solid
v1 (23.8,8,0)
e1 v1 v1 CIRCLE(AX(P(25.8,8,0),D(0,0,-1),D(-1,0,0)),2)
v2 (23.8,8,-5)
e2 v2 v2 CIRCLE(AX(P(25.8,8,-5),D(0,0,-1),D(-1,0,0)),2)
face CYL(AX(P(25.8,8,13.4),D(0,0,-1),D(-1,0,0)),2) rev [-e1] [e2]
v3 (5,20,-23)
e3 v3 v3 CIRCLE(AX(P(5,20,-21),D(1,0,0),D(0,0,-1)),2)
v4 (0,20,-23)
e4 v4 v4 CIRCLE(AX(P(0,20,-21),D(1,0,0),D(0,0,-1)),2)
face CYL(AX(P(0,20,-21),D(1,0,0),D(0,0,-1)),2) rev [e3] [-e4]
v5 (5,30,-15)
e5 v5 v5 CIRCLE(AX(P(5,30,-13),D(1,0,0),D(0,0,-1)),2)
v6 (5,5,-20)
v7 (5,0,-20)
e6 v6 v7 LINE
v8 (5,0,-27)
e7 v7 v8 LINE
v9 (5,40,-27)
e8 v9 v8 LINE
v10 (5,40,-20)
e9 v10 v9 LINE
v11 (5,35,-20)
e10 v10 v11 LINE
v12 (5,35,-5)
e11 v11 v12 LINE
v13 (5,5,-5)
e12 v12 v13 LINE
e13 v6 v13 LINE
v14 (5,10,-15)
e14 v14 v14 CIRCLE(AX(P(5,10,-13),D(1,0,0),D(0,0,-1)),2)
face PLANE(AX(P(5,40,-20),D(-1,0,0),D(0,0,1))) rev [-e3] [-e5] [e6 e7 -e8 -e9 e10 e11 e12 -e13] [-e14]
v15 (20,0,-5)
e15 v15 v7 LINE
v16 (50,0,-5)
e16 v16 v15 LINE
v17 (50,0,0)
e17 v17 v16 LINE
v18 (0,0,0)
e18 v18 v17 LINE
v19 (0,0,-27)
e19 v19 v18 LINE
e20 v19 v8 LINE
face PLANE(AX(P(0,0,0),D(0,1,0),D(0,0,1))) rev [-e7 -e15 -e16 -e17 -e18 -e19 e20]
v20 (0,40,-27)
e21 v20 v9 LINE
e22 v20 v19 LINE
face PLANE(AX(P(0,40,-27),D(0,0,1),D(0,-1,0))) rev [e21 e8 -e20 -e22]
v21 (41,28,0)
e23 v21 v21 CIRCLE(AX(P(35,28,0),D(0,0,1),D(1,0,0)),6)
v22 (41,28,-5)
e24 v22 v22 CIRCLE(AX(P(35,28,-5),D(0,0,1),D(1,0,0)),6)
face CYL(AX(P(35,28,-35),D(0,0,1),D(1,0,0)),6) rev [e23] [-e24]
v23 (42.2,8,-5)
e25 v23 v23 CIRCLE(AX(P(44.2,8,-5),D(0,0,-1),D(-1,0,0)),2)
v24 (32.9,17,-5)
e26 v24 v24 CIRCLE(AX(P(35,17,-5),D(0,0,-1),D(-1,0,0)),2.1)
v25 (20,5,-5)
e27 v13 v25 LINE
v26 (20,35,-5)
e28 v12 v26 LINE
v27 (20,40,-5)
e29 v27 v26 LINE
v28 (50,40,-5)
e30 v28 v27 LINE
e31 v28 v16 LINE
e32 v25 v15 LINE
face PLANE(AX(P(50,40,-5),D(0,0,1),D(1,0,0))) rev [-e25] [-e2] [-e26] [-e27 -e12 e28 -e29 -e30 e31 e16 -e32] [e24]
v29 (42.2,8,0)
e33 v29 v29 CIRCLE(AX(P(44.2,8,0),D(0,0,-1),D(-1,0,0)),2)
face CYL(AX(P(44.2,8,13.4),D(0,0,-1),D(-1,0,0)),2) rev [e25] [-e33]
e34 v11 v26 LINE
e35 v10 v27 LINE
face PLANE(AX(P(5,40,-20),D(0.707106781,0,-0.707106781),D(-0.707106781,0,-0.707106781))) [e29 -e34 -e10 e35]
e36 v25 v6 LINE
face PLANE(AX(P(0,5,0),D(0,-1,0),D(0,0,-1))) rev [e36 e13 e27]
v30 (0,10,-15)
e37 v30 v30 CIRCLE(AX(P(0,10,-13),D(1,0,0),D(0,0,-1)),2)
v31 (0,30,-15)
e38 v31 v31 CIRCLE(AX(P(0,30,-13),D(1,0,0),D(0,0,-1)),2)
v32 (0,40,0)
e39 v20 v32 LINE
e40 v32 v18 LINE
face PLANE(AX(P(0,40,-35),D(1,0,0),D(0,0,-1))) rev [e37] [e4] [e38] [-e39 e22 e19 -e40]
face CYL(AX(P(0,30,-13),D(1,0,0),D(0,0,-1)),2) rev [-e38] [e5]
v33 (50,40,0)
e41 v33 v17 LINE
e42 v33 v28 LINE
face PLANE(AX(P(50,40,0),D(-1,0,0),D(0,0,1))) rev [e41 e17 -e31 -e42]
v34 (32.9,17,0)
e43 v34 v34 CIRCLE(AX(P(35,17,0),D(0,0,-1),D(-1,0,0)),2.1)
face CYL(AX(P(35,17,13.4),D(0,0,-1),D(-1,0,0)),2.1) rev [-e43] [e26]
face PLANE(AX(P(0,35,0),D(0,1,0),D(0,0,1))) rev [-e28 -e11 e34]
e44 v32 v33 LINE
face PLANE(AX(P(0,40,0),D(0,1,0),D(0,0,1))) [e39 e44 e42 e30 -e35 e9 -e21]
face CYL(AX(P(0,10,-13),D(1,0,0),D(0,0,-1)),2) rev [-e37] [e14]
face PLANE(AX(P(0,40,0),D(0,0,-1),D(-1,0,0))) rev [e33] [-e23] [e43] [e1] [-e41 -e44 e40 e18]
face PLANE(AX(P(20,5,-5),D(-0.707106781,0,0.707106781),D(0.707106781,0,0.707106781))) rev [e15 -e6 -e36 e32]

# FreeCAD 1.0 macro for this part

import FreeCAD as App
import Part
import Sketcher

V = App.Vector


def add_polygon(sketch, points):
    """Adds a closed chain of lines whose ends are joined by coincident constraints."""
    first, n = sketch.GeometryCount, len(points)
    for a, b in zip(points, points[1:] + points[:1]):
        sketch.addGeometry(Part.LineSegment(App.Vector(*a, 0), App.Vector(*b, 0)), False)
    for i in range(n):
        sketch.addConstraint(Sketcher.Constraint("Coincident", first + i, 2, first + (i + 1) % n, 1))

doc = App.newDocument("Part")
body = doc.addObject("PartDesign::Body", "Body")

sketch1 = body.newObject("Sketcher::SketchObject", "Sketch")
sketch1.AttachmentSupport = (doc.getObject("XZ_Plane"), [""])
sketch1.MapMode = "FlatFace"
add_polygon(sketch1, [(0, 0), (50, 0), (50, -5), (20, -5), (5, -20), (5, -35), (0, -35)])
sketch1.addConstraint([
    Sketcher.Constraint("Horizontal", 0),
    Sketcher.Constraint("Vertical", 1),
    Sketcher.Constraint("Horizontal", 2),
    Sketcher.Constraint("Vertical", 4),
    Sketcher.Constraint("Horizontal", 5),
    Sketcher.Constraint("Vertical", 6),
    Sketcher.Constraint("Coincident", 6, 2, -1, 1),
    Sketcher.Constraint("Equal", 5, 1),
    Sketcher.Constraint("DistanceX", 0, 1, 0, 2, 50.0),
    Sketcher.Constraint("DistanceX", 2, 2, 2, 1, 30.0),
    Sketcher.Constraint("DistanceX", 5, 2, 5, 1, 5.0),
    Sketcher.Constraint("DistanceY", 4, 2, 4, 1, 15.0),
    Sketcher.Constraint("DistanceY", 6, 1, 6, 2, 35.0),
])
pad1 = body.newObject("PartDesign::Pad", "Pad")
pad1.Profile = sketch1
pad1.Length = 40
pad1.Reversed = True

sketch2 = body.newObject("Sketcher::SketchObject", "Sketch001")
sketch2.AttachmentSupport = (doc.getObject("XZ_Plane"), [""])
sketch2.MapMode = "FlatFace"
add_polygon(sketch2, [(5, -5), (5, -20), (20, -5)])
sketch2.addConstraint([
    Sketcher.Constraint("Vertical", 0),
    Sketcher.Constraint("Horizontal", 2),
    Sketcher.Constraint("Equal", 2, 0),
    Sketcher.Constraint("DistanceX", 2, 2, 2, 1, 15.0),
    Sketcher.Constraint("DistanceX", -1, 1, 0, 2, 5.0),
    Sketcher.Constraint("DistanceY", 0, 2, -1, 1, 20.0),
])
pocket1 = body.newObject("PartDesign::Pocket", "Pocket")
pocket1.Profile = sketch2
pocket1.Length = 35

sketch3 = body.newObject("Sketcher::SketchObject", "Sketch002")
sketch3.AttachmentSupport = (doc.getObject("XZ_Plane"), [""])
sketch3.MapMode = "FlatFace"
add_polygon(sketch3, [(5, -5), (5, -20), (20, -5)])
sketch3.addConstraint([
    Sketcher.Constraint("Vertical", 0),
    Sketcher.Constraint("Horizontal", 2),
    Sketcher.Constraint("Equal", 2, 0),
    Sketcher.Constraint("DistanceX", 2, 2, 2, 1, 15.0),
    Sketcher.Constraint("DistanceX", -1, 1, 0, 2, 5.0),
    Sketcher.Constraint("DistanceY", 0, 2, -1, 1, 20.0),
])
pad2 = body.newObject("PartDesign::Pad", "Pad001")
pad2.Profile = sketch3
pad2.Length = 5
pad2.Reversed = True

sketch4 = body.newObject("Sketcher::SketchObject", "Sketch003")
sketch4.AttachmentSupport = (doc.getObject("YZ_Plane"), [""])
sketch4.MapMode = "FlatFace"
sketch4.AttachmentOffset = App.Placement(V(0, 0, 5), App.Rotation())
sketch4.addGeometry([
    Part.Circle(V(30, -13, 0), V(0, 0, 1), 2),
    Part.Circle(V(10, -13, 0), V(0, 0, 1), 2),
    Part.Circle(V(20, -21, 0), V(0, 0, 1), 2),
], False)
sketch4.addConstraint([
    Sketcher.Constraint("Equal", 0, 1),
    Sketcher.Constraint("Equal", 1, 2),
    Sketcher.Constraint("Horizontal", 0, 3, 1, 3),
    Sketcher.Constraint("Diameter", 0, 4.0),
    Sketcher.Constraint("DistanceX", -1, 1, 0, 3, 30.0),
    Sketcher.Constraint("DistanceY", 0, 3, -1, 1, 13.0),
    Sketcher.Constraint("DistanceX", -1, 1, 1, 3, 10.0),
    Sketcher.Constraint("DistanceX", -1, 1, 2, 3, 20.0),
    Sketcher.Constraint("DistanceY", 2, 3, -1, 1, 21.0),
])
pocket2 = body.newObject("PartDesign::Pocket", "Pocket001")
pocket2.Profile = sketch4
pocket2.Type = "ThroughAll"

sketch5 = body.newObject("Sketcher::SketchObject", "Sketch004")
sketch5.AttachmentSupport = (doc.getObject("XY_Plane"), [""])
sketch5.MapMode = "FlatFace"
sketch5.AttachmentOffset = App.Placement(V(0, 0, -5), App.Rotation())
sketch5.addGeometry([
    Part.Circle(V(35, 28, 0), V(0, 0, 1), 3.2),
    Part.Circle(V(35, 17, 0), V(0, 0, 1), 2.1),
    Part.Circle(V(25.8, 8, 0), V(0, 0, 1), 2),
    Part.Circle(V(44.2, 8, 0), V(0, 0, 1), 2),
], False)
sketch5.addConstraint([
    Sketcher.Constraint("Equal", 2, 3),
    Sketcher.Constraint("Horizontal", 2, 3, 3, 3),
    Sketcher.Constraint("Vertical", 0, 3, 1, 3),
    Sketcher.Constraint("Diameter", 2, 4.0),
    Sketcher.Constraint("Diameter", 0, 6.4),
    Sketcher.Constraint("Diameter", 1, 4.2),
    Sketcher.Constraint("DistanceX", -1, 1, 0, 3, 35.0),
    Sketcher.Constraint("DistanceY", -1, 1, 0, 3, 28.0),
    Sketcher.Constraint("DistanceY", -1, 1, 1, 3, 17.0),
    Sketcher.Constraint("DistanceY", -1, 1, 2, 3, 8.0),
    Sketcher.Constraint("DistanceX", -1, 1, 2, 3, 25.8),
    Sketcher.Constraint("DistanceX", -1, 1, 3, 3, 44.2),
])
pocket3 = body.newObject("PartDesign::Pocket", "Pocket002")
pocket3.Profile = sketch5
pocket3.Length = 18.4
pocket3.Reversed = True

sketch6 = body.newObject("Sketcher::SketchObject", "Sketch005")
sketch6.AttachmentSupport = (doc.getObject("XY_Plane"), [""])
sketch6.MapMode = "FlatFace"
sketch6.addGeometry(Part.Circle(V(35, 28, 0), V(0, 0, 1), 5), False)
sketch6.addConstraint([
    Sketcher.Constraint("Diameter", 0, 10.1),
    Sketcher.Constraint("DistanceX", -1, 1, 0, 3, 35.0),
    Sketcher.Constraint("DistanceY", -1, 1, 0, 3, 28.0),
])
pocket4 = body.newObject("PartDesign::Pocket", "Pocket003")
pocket4.Profile = sketch6
pocket4.Length = 3

sketch7 = body.newObject("Sketcher::SketchObject", "Sketch006")
sketch7.AttachmentSupport = (doc.getObject("XY_Plane"), [""])
sketch7.MapMode = "FlatFace"
sketch7.addGeometry(Part.Circle(V(35, 28, 0), V(0, 0, 1), 6), False)
sketch7.addConstraint([
    Sketcher.Constraint("Diameter", 0, 12.0),
    Sketcher.Constraint("DistanceX", -1, 1, 0, 3, 35.0),
    Sketcher.Constraint("DistanceY", -1, 1, 0, 3, 28.0),
])
pocket5 = body.newObject("PartDesign::Pocket", "Pocket004")
pocket5.Profile = sketch7
pocket5.Type = "ThroughAll"

sketch8 = body.newObject("Sketcher::SketchObject", "Sketch007")
sketch8.AttachmentSupport = (doc.getObject("YZ_Plane"), [""])
sketch8.MapMode = "FlatFace"
sketch8.AttachmentOffset = App.Placement(V(0, 0, 5), App.Rotation())
add_polygon(sketch8, [(40, -27), (0, -27), (0, -35), (40, -35)])
sketch8.addConstraint([
    Sketcher.Constraint("Horizontal", 0),
    Sketcher.Constraint("Vertical", 1),
    Sketcher.Constraint("Horizontal", 2),
    Sketcher.Constraint("Vertical", 3),
    Sketcher.Constraint("PointOnObject", 0, 2, -2),
    Sketcher.Constraint("DistanceX", 0, 2, 0, 1, 40.0),
    Sketcher.Constraint("DistanceY", 1, 2, 1, 1, 8.0),
    Sketcher.Constraint("DistanceY", 0, 2, -1, 1, 27.0),
])
pocket6 = body.newObject("PartDesign::Pocket", "Pocket005")
pocket6.Profile = sketch8
pocket6.Type = "ThroughAll"

doc.recompute()
